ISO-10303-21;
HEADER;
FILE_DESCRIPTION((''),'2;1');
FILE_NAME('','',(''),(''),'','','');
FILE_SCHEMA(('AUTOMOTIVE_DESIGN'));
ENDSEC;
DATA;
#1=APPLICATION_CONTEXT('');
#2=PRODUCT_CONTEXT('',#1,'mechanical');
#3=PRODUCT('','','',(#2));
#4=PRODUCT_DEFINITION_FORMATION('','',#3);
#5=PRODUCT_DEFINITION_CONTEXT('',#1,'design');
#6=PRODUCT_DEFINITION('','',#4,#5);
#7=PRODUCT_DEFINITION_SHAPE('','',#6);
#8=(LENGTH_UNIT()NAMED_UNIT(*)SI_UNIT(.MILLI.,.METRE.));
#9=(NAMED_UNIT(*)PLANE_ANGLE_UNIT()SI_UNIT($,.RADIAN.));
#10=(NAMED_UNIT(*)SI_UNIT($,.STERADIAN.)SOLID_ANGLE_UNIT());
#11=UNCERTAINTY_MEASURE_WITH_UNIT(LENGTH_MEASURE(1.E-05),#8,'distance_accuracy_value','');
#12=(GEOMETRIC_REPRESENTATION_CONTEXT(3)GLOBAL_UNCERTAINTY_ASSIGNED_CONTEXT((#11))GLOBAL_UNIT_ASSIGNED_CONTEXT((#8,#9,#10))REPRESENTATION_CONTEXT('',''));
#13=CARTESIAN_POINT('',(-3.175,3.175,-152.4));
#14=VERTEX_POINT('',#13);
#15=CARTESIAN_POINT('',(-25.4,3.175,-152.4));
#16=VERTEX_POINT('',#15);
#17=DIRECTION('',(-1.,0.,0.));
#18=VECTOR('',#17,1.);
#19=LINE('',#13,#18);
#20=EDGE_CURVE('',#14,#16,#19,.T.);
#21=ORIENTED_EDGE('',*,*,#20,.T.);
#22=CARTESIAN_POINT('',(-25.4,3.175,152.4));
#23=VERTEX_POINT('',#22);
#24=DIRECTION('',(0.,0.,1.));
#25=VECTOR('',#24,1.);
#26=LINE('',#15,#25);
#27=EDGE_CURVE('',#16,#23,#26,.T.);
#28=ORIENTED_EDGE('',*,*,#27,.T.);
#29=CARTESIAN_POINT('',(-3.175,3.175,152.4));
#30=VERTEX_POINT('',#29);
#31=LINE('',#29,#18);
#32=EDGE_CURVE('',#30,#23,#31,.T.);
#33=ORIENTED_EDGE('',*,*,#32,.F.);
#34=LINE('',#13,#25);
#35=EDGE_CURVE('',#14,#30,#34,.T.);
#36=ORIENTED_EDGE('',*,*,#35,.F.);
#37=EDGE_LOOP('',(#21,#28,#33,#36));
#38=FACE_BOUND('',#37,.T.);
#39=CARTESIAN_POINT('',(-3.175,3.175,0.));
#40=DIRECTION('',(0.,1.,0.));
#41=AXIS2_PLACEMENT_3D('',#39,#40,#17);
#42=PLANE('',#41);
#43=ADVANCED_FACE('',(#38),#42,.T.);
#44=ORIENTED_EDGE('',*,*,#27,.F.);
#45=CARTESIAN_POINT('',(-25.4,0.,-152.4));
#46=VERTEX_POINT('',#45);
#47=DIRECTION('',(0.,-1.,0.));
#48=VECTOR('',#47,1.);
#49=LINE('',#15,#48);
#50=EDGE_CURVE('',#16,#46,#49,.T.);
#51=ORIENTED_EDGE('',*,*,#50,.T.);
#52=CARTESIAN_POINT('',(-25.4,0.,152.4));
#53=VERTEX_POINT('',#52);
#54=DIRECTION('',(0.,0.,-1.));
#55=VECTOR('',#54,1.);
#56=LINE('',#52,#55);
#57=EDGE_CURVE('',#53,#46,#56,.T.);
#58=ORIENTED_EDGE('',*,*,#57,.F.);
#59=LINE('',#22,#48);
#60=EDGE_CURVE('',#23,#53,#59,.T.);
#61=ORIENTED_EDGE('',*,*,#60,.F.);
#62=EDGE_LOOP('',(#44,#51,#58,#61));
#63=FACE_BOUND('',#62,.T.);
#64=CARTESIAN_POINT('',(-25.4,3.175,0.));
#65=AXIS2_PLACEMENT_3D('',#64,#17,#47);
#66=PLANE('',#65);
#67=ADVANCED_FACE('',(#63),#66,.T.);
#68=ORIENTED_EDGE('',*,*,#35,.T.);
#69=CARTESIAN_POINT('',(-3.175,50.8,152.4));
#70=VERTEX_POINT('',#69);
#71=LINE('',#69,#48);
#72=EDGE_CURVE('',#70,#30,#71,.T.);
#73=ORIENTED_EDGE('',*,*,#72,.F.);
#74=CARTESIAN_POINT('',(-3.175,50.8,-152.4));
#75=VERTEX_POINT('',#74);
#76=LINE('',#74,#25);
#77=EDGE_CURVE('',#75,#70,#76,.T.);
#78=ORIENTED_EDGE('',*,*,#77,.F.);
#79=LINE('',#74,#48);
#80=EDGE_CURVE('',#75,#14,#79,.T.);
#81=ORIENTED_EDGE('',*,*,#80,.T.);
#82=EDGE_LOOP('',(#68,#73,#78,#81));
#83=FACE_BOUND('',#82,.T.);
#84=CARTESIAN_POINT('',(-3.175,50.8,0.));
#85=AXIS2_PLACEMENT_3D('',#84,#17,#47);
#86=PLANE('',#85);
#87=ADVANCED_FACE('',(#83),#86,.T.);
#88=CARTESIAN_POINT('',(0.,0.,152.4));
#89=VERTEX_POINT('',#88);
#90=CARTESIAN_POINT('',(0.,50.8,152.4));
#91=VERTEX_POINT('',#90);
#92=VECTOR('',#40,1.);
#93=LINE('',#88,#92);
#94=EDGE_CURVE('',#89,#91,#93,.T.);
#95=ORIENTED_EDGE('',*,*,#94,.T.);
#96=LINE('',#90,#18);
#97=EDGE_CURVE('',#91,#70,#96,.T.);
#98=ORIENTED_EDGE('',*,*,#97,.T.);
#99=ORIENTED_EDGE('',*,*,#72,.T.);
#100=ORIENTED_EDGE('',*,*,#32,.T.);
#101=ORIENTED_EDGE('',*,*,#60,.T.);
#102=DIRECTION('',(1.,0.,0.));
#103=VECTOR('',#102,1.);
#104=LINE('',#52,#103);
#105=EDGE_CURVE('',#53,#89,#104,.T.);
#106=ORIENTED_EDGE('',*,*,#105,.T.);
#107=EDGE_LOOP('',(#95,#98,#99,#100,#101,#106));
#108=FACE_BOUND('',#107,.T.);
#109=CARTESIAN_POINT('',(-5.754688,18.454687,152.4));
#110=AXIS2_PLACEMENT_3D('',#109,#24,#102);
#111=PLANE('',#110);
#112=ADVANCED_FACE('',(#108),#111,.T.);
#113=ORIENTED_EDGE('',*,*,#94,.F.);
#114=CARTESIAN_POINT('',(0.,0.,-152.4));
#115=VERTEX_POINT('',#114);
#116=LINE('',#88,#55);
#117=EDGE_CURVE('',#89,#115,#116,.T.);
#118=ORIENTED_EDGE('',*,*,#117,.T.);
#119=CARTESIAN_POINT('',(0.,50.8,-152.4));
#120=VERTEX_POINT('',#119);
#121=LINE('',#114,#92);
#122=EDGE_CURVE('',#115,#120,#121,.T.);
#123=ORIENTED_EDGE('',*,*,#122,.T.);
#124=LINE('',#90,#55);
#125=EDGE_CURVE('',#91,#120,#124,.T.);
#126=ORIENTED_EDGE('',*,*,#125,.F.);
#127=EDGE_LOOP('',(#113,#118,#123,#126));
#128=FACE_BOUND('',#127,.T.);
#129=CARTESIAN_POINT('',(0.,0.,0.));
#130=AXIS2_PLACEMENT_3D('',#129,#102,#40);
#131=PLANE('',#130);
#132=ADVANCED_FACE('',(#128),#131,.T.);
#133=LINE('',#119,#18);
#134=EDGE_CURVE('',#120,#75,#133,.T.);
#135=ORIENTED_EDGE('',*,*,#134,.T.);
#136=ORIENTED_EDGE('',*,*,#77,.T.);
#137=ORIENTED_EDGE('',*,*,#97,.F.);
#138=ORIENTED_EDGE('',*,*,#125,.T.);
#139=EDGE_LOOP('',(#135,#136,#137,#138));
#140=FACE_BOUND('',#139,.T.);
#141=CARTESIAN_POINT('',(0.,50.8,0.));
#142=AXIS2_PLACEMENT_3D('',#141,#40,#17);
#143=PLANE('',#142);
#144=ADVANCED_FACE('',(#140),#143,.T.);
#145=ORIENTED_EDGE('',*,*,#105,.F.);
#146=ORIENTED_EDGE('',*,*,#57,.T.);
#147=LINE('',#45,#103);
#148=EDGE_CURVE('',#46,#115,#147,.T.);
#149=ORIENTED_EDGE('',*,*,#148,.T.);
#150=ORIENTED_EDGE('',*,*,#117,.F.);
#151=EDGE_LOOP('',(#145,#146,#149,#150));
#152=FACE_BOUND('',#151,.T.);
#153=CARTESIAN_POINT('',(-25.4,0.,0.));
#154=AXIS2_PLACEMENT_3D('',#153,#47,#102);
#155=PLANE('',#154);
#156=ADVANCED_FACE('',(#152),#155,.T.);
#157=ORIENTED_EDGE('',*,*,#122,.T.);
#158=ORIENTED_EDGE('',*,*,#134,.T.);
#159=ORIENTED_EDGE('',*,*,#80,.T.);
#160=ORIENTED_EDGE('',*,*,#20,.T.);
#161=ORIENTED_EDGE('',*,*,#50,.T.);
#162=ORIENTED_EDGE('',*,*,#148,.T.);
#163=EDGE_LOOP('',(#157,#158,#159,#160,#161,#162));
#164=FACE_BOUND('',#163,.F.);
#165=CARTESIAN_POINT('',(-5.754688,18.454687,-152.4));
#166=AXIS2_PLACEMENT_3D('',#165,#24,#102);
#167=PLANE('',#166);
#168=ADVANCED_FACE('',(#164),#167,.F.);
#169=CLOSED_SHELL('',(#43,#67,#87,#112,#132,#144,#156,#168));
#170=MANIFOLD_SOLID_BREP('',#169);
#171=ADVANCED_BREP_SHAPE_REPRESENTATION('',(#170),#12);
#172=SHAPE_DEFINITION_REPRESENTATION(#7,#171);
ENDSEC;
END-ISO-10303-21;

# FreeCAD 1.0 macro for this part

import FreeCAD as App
import Part
import Sketcher
Q = App.Units.Quantity

doc = App.newDocument("Part")
body = doc.addObject("PartDesign::Body", "Body")

sketch1 = body.newObject("Sketcher::SketchObject", "Sketch")
sketch1.AttachmentSupport = (doc.getObject("XY_Plane"), [""])
sketch1.MapMode = "FlatFace"
sketch1.addGeometry([
    Part.LineSegment(App.Vector(0, 50.8, 0), App.Vector(-3.2, 50.8, 0)),
    Part.LineSegment(App.Vector(-3.2, 50.8, 0), App.Vector(-3.2, 3.2, 0)),
    Part.LineSegment(App.Vector(-3.2, 3.2, 0), App.Vector(-25.4, 3.2, 0)),
    Part.LineSegment(App.Vector(-25.4, 3.2, 0), App.Vector(-25.4, 0, 0)),
    Part.LineSegment(App.Vector(-25.4, 0, 0), App.Vector(0, 0, 0)),
    Part.LineSegment(App.Vector(0, 0, 0), App.Vector(0, 50.8, 0)),
], False)
sketch1.addConstraint([
    Sketcher.Constraint("Coincident", 0, 2, 1, 1),
    Sketcher.Constraint("Coincident", 1, 2, 2, 1),
    Sketcher.Constraint("Coincident", 2, 2, 3, 1),
    Sketcher.Constraint("Coincident", 3, 2, 4, 1),
    Sketcher.Constraint("Coincident", 4, 2, 5, 1),
    Sketcher.Constraint("Coincident", 5, 2, 0, 1),
    Sketcher.Constraint("Horizontal", 0),
    Sketcher.Constraint("Vertical", 1),
    Sketcher.Constraint("Horizontal", 2),
    Sketcher.Constraint("Vertical", 3),
    Sketcher.Constraint("Horizontal", 4),
    Sketcher.Constraint("Vertical", 5),
    Sketcher.Constraint("Coincident", 4, 2, -1, 1),
    Sketcher.Constraint("Equal", 0, 3),
    Sketcher.Constraint("DistanceX", 4, 1, 4, 2, Q("1 in")),
    Sketcher.Constraint("DistanceY", 5, 1, 5, 2, Q("2 in")),
    Sketcher.Constraint("DistanceX", 0, 2, 0, 1, Q("0.125 in")),
])
pad1 = body.newObject("PartDesign::Pad", "Pad")
pad1.Profile = sketch1
pad1.Type = "TwoLengths"
pad1.Length = Q("6 in")
pad1.Length2 = Q("6 in")

doc.recompute()
